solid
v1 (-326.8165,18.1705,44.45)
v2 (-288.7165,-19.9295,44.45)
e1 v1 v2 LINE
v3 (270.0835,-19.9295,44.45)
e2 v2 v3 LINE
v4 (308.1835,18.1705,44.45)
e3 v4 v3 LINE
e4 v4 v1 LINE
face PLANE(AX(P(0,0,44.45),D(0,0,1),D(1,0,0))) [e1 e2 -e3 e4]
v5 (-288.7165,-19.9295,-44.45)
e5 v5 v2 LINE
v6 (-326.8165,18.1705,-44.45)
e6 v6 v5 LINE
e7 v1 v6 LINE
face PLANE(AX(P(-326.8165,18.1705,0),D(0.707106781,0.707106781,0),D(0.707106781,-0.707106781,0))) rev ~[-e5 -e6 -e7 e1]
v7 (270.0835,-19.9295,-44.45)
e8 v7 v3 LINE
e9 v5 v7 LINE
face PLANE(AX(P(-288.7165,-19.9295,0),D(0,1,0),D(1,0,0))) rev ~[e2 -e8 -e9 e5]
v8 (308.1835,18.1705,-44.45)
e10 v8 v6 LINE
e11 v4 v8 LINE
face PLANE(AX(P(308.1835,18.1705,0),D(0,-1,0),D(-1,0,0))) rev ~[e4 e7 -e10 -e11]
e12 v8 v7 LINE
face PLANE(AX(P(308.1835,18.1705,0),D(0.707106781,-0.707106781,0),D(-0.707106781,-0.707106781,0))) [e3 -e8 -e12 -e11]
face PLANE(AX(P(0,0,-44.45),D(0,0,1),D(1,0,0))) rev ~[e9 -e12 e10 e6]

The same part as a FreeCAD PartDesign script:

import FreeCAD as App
import Part
import Sketcher
Q = App.Units.Quantity


def add_polygon(sketch, points):
    """Adds a closed chain of lines whose ends are joined by coincident constraints."""
    first, n = sketch.GeometryCount, len(points)
    for a, b in zip(points, points[1:] + points[:1]):
        sketch.addGeometry(Part.LineSegment(App.Vector(*a, 0), App.Vector(*b, 0)), False)
    for i in range(n):
        sketch.addConstraint(Sketcher.Constraint("Coincident", first + i, 2, first + (i + 1) % n, 1))

doc = App.newDocument("Part")
body = doc.addObject("PartDesign::Body", "Body")

sketch1 = doc.addObject("Sketcher::SketchObject", "Sketch")
body.addObject(sketch1)
sketch1.AttachmentSupport = (doc.XY_Plane, [""])
sketch1.MapMode = "FlatFace"
add_polygon(sketch1, [(-327, 18), (-289, -20), (270, -20), (308, 18)])
sketch1.addConstraint([
    Sketcher.Constraint("Horizontal", 1),
    Sketcher.Constraint("Horizontal", 3),
    Sketcher.Constraint("Perpendicular", 0, 2),
    Sketcher.Constraint("Equal", 0, 2),
    Sketcher.Constraint("DistanceX", 3, 2, 3, 1, Q("25 in")),
    Sketcher.Constraint("DistanceX", 1, 2, 2, 2, Q("1.5 in")),
    Sketcher.Constraint("DistanceX", 0, 2, -1, 1, Q("11.3668 in")),
    Sketcher.Constraint("DistanceY", 0, 2, -1, 1, 19.9295),
])
pad1 = doc.addObject("PartDesign::Pad", "Pad")
body.addObject(pad1)
pad1.Profile = sketch1
pad1.Length = Q("3.5 in")
pad1.Midplane = True

doc.recompute()
